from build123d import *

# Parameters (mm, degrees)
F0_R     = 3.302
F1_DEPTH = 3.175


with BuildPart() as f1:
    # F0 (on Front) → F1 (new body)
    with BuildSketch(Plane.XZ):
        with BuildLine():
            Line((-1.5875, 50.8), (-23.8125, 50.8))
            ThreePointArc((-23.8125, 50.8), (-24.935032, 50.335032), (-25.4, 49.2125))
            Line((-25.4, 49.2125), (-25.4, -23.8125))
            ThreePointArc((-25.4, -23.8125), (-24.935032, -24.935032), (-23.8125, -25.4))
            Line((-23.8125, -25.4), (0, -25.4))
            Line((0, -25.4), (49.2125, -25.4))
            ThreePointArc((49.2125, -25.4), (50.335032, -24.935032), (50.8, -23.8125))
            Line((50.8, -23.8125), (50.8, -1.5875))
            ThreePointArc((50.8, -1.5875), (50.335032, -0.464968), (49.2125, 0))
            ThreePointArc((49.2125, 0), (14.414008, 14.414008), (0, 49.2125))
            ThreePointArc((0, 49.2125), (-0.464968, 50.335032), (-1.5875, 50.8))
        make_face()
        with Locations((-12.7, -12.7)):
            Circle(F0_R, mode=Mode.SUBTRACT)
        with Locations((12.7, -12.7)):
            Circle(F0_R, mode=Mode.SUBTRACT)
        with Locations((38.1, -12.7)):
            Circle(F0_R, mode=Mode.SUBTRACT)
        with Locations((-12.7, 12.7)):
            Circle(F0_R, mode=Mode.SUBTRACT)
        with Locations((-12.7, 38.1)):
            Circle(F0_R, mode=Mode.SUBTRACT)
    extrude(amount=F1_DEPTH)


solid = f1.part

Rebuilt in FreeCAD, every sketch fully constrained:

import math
import FreeCAD as App
import Part
import Sketcher
from FreeCAD import Vector
Q = App.Units.Quantity

doc = App.newDocument("Part")
body = doc.addObject("PartDesign::Body", "Body")

sketch1 = doc.addObject("Sketcher::SketchObject", "Sketch")
body.addObject(sketch1)
sketch1.AttachmentSupport = (doc.XZ_Plane, [""])
sketch1.MapMode = "FlatFace"
sketch1.addGeometry([
    Part.LineSegment(Vector(-1.5875, 50.8, 0), Vector(-23.8125, 50.8, 0)),
    Part.ArcOfCircle(Part.Circle(Vector(-23.8125, 49.2125, 0), Vector(0, 0, 1), 1.5875), math.radians(90.000002), math.radians(179.999998)),
    Part.LineSegment(Vector(-25.4, 49.2125, 0), Vector(-25.4, -23.8125, 0)),
    Part.ArcOfCircle(Part.Circle(Vector(-23.8125, -23.8125, 0), Vector(0, 0, 1), 1.5875), math.radians(-179.999998), math.radians(-90.000002)),
    Part.LineSegment(Vector(-23.8125, -25.4, 0), Vector(49.2125, -25.4, 0)),
    Part.ArcOfCircle(Part.Circle(Vector(49.2125, -23.8125, 0), Vector(0, 0, 1), 1.5875), math.radians(-89.999998), math.radians(-0.000002)),
    Part.LineSegment(Vector(50.8, -23.8125, 0), Vector(50.8, -1.5875, 0)),
    Part.ArcOfCircle(Part.Circle(Vector(49.2125, -1.5875, 0), Vector(0, 0, 1), 1.5875), math.radians(0.000002), math.radians(89.999998)),
    Part.ArcOfCircle(Part.Circle(Vector(49.212502, 49.212502, 0), Vector(0, 0, 1), 49.212502), math.radians(-179.999998), math.radians(-90.000002)),
    Part.ArcOfCircle(Part.Circle(Vector(-1.5875, 49.2125, 0), Vector(0, 0, 1), 1.5875), math.radians(0.000002), math.radians(89.999998)),
    Part.Circle(Vector(-12.7, -12.7, 0), Vector(0, 0, 1), 3.302),
    Part.Circle(Vector(12.7, -12.7, 0), Vector(0, 0, 1), 3.302),
    Part.Circle(Vector(-12.7, 12.7, 0), Vector(0, 0, 1), 3.302),
    Part.Circle(Vector(38.1, -12.7, 0), Vector(0, 0, 1), 3.302),
    Part.Circle(Vector(-12.7, 38.1, 0), Vector(0, 0, 1), 3.302),
], False)
sketch1.addConstraint([
    Sketcher.Constraint("Tangent", 0, 2, 1, 1),
    Sketcher.Constraint("Tangent", 1, 2, 2, 1),
    Sketcher.Constraint("Tangent", 2, 2, 3, 1),
    Sketcher.Constraint("Tangent", 3, 2, 4, 1),
    Sketcher.Constraint("Tangent", 4, 2, 5, 1),
    Sketcher.Constraint("Tangent", 5, 2, 6, 1),
    Sketcher.Constraint("Tangent", 6, 2, 7, 1),
    Sketcher.Constraint("Tangent", 7, 2, 8, 2),
    Sketcher.Constraint("Tangent", 8, 1, 9, 1),
    Sketcher.Constraint("Tangent", 9, 2, 0, 1),
    Sketcher.Constraint("Horizontal", 0),
    Sketcher.Constraint("Vertical", 2),
    Sketcher.Constraint("Horizontal", 4),
    Sketcher.Constraint("Vertical", 6),
    Sketcher.Constraint("Equal", 1, 3),
    Sketcher.Constraint("Equal", 3, 5),
    Sketcher.Constraint("Equal", 5, 7),
    Sketcher.Constraint("Equal", 7, 9),
    Sketcher.Constraint("Equal", 10, 11),
    Sketcher.Constraint("Equal", 11, 12),
    Sketcher.Constraint("Equal", 12, 13),
    Sketcher.Constraint("Equal", 13, 14),
    Sketcher.Constraint("Symmetric", 11, 3, 12, 3, -1, 1),
    Sketcher.Constraint("Symmetric", 10, 3, 11, 3, -2),
    Sketcher.Constraint("PointOnObject", 7, 2, -1),
    Sketcher.Constraint("PointOnObject", 8, 1, -2),
    Sketcher.Constraint("Horizontal", 1, 3, 8, 3),
    Sketcher.Constraint("Horizontal", 11, 3, 13, 3),
    Sketcher.Constraint("Vertical", 7, 3, 8, 3),
    Sketcher.Constraint("Vertical", 12, 3, 14, 3),
    Sketcher.Constraint("Equal", 4, 2),
    Sketcher.Constraint("Diameter", 10, Q("0.26 in")),
    Sketcher.Constraint("DistanceY", -1, 1, 0, 2, Q("2 in")),
    Sketcher.Constraint("DistanceX", 1, 2, -1, 1, Q("1 in")),
    Sketcher.Constraint("Radius", 1, Q("0.0625 in")),
    Sketcher.Constraint("DistanceX", 10, 3, 11, 3, Q("1 in")),
    Sketcher.Constraint("DistanceY", 10, 3, 12, 3, Q("1 in")),
    Sketcher.Constraint("DistanceX", 11, 3, 13, 3, Q("1 in")),
    Sketcher.Constraint("DistanceY", 12, 3, 14, 3, Q("1 in")),
])
pad1 = doc.addObject("PartDesign::Pad", "Pad")
body.addObject(pad1)
pad1.Profile = sketch1
pad1.Length = Q("0.125 in")

doc.recompute()
